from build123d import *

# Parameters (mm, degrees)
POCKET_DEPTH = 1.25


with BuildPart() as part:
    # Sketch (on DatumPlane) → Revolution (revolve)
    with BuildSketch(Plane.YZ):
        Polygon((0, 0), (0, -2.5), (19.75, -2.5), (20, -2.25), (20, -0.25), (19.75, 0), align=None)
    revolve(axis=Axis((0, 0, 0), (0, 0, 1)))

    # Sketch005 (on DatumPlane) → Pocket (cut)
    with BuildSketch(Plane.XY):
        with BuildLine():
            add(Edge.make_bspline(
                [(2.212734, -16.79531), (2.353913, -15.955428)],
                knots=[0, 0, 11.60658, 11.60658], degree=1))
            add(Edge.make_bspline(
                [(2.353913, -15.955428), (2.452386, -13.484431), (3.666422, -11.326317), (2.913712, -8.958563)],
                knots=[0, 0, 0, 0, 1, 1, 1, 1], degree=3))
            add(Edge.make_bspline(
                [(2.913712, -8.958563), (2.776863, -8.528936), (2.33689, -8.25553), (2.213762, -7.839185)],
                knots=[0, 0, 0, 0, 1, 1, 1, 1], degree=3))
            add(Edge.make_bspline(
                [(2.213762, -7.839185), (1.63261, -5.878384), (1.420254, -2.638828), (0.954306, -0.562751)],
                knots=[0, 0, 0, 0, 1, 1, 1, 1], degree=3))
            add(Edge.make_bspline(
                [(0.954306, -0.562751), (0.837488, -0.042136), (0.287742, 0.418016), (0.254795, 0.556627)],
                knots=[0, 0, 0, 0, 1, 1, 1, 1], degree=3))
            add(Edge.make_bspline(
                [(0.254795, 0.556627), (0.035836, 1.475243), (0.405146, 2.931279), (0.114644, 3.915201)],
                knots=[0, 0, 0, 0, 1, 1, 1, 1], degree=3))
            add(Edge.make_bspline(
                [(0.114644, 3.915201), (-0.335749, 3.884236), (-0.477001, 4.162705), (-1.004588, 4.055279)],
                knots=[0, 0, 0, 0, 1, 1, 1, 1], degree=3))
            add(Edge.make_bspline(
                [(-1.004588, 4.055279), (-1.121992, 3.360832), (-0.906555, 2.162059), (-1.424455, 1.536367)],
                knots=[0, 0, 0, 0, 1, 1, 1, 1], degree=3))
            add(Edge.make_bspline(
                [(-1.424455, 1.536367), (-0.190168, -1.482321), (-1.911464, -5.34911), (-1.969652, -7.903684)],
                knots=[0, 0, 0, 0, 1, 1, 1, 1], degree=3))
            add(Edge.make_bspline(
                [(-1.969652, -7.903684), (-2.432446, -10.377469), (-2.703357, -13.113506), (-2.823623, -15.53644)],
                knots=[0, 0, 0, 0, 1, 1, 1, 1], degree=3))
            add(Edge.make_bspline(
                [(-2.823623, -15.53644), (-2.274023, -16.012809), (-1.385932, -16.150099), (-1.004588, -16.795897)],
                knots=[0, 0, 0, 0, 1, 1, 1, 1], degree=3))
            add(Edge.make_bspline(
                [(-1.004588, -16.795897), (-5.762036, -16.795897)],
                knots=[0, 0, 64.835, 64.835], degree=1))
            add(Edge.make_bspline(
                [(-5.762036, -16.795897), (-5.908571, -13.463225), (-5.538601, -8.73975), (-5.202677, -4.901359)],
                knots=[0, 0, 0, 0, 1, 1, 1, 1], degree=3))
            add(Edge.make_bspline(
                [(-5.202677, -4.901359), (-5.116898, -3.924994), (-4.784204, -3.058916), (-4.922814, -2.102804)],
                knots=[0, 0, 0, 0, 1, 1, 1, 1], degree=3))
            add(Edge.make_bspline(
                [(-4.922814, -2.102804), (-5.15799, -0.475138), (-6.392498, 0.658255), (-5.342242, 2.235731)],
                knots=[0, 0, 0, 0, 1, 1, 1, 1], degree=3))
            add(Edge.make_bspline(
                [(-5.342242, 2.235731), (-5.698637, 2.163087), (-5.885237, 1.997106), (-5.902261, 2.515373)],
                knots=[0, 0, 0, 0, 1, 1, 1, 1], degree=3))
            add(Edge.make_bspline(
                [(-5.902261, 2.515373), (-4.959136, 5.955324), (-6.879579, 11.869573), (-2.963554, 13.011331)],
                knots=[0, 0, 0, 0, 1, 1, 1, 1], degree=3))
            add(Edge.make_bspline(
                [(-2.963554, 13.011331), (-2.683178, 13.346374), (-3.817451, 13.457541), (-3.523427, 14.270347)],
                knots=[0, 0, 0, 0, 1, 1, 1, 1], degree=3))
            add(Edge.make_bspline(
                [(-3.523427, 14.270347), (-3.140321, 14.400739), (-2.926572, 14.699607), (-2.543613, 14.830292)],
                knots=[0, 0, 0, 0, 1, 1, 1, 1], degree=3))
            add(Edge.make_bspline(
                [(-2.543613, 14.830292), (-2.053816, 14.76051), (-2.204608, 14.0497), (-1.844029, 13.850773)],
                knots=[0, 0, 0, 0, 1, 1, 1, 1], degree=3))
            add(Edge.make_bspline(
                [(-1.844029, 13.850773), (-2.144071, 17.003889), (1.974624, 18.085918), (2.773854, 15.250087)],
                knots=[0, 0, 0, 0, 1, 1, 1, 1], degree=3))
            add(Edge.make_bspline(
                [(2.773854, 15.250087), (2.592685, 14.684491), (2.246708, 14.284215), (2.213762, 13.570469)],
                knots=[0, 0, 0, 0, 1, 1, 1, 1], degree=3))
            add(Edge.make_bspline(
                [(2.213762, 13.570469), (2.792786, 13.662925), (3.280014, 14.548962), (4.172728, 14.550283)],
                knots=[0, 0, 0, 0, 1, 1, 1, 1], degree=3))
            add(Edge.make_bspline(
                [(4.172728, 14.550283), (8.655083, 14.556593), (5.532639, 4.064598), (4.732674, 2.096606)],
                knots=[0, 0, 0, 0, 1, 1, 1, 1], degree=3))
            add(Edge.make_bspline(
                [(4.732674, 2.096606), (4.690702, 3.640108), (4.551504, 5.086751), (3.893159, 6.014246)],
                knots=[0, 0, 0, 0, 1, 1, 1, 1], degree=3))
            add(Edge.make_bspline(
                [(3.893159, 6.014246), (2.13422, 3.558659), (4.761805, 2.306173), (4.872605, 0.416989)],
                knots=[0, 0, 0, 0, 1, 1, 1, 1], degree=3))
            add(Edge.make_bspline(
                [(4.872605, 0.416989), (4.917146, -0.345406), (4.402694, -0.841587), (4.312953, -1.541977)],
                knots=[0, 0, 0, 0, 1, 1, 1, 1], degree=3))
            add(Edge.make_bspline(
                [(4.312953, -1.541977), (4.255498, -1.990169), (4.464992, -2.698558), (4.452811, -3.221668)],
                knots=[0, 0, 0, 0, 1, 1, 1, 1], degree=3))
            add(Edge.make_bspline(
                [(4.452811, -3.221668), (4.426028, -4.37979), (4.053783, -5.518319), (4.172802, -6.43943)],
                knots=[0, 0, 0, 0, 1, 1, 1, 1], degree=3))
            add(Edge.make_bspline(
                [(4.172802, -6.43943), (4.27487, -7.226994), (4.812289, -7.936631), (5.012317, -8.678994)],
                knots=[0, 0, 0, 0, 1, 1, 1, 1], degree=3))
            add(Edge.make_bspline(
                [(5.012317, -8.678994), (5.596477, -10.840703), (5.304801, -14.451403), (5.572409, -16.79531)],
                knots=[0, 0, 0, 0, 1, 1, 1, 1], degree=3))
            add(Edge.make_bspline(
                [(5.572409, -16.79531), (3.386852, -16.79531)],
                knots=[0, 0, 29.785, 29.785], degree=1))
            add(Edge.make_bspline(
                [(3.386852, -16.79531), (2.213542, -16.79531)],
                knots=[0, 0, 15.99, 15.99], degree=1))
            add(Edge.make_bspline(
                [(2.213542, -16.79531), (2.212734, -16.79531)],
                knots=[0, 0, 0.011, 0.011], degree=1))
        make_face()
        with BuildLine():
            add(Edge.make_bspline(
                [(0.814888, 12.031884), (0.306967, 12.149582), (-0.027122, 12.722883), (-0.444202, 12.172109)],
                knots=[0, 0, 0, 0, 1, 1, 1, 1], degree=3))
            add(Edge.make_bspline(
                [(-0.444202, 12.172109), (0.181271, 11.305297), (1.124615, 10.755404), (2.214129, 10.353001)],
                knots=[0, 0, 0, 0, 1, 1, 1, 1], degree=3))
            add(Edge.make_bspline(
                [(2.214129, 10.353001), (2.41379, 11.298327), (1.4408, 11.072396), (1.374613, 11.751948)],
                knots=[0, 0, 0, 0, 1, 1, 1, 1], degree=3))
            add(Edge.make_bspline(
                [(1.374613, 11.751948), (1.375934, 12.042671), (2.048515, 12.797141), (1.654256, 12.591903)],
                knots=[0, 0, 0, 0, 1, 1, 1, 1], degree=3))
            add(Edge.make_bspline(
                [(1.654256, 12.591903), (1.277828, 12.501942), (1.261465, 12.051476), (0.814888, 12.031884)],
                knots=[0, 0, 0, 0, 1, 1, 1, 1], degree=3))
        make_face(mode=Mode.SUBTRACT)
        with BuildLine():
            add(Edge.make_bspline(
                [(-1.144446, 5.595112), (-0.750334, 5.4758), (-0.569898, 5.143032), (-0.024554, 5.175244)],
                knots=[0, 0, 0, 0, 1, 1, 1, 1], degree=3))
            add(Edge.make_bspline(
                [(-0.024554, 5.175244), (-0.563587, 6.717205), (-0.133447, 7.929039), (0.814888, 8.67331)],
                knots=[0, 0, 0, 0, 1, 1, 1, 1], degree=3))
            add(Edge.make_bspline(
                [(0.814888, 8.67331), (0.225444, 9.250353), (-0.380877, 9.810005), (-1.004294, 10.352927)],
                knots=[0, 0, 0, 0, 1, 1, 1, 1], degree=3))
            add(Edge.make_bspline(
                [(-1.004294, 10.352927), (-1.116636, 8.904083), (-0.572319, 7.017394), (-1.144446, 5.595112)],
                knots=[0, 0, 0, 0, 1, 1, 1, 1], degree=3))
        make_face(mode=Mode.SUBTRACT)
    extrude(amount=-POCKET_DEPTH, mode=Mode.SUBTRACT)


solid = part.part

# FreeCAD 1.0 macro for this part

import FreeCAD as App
import Part
import Sketcher

V = App.Vector
Q = App.Units.Quantity


def add_polygon(sketch, points):
    """Adds a closed chain of lines whose ends are joined by coincident constraints."""
    first, n = sketch.GeometryCount, len(points)
    for a, b in zip(points, points[1:] + points[:1]):
        sketch.addGeometry(Part.LineSegment(App.Vector(*a, 0), App.Vector(*b, 0)), False)
    for i in range(n):
        sketch.addConstraint(Sketcher.Constraint("Coincident", first + i, 2, first + (i + 1) % n, 1))

doc = App.newDocument("Part")
body = doc.addObject("PartDesign::Body", "Body")

sketch1 = body.newObject("Sketcher::SketchObject", "Sketch")
sketch1.AttachmentSupport = (doc.getObject("YZ_Plane"), [""])
sketch1.MapMode = "FlatFace"
add_polygon(sketch1, [(0, 0), (0, -2.5), (19.75, -2.5), (20, -2.25), (20, -0.25), (19.75, 0)])
sketch1.addConstraint([
    Sketcher.Constraint("Vertical", 0),
    Sketcher.Constraint("Horizontal", 1),
    Sketcher.Constraint("Vertical", 3),
    Sketcher.Constraint("Horizontal", 5),
    Sketcher.Constraint("Coincident", 5, 2, -1, 1),
    Sketcher.Constraint("Perpendicular", 2, 4),
    Sketcher.Constraint("Vertical", 1, 2, 4, 2),
    Sketcher.Constraint("Equal", 2, 4),
    Sketcher.Constraint("DistanceY", 3, 1, 3, 2, Q("2 mm")),
    Sketcher.Constraint("DistanceY", 0, 2, 0, 1, Q("2.5 mm")),
    Sketcher.Constraint("DistanceX", -1, 1, 2, 2, Q("20 mm")),
])
revolution = body.newObject("PartDesign::Revolution", "Revolution")
revolution.Profile = sketch1
revolution.ReferenceAxis = (sketch1, ["V_Axis"])
revolution.Angle = 360

sketch2 = body.newObject("Sketcher::SketchObject", "Sketch001")
sketch2.AttachmentSupport = (doc.getObject("XY_Plane"), [""])
sketch2.MapMode = "FlatFace"
sketch2.addGeometry([
    Part.BSplineCurve([V(2.212734, -16.79531, 0), V(2.353913, -15.955428, 0)], [2, 2], [0, 11.60658], False, 1, [1, 1], False),
    Part.LineSegment(V(2.212734, -16.79531, 0), V(5.572409, -16.79531, 0)),
    Part.BSplineCurve([V(5.012317, -8.678994, 0), V(5.596477, -10.840703, 0), V(5.304801, -14.451403, 0), V(5.572409, -16.79531, 0)], [4, 4], [0, 1], False, 3, [1, 1, 1, 1], False),
    Part.BSplineCurve([V(4.172802, -6.43943, 0), V(4.27487, -7.226994, 0), V(4.812289, -7.936631, 0), V(5.012317, -8.678994, 0)], [4, 4], [0, 1], False, 3, [1, 1, 1, 1], False),
    Part.BSplineCurve([V(4.452811, -3.221668, 0), V(4.426028, -4.37979, 0), V(4.053783, -5.518319, 0), V(4.172802, -6.43943, 0)], [4, 4], [0, 1], False, 3, [1, 1, 1, 1], False),
    Part.BSplineCurve([V(4.312953, -1.541977, 0), V(4.255498, -1.990169, 0), V(4.464992, -2.698558, 0), V(4.452811, -3.221668, 0)], [4, 4], [0, 1], False, 3, [1, 1, 1, 1], False),
    Part.BSplineCurve([V(4.872605, 0.416989, 0), V(4.917146, -0.345406, 0), V(4.402694, -0.841587, 0), V(4.312953, -1.541977, 0)], [4, 4], [0, 1], False, 3, [1, 1, 1, 1], False),
    Part.BSplineCurve([V(3.893159, 6.014246, 0), V(2.13422, 3.558659, 0), V(4.761805, 2.306173, 0), V(4.872605, 0.416989, 0)], [4, 4], [0, 1], False, 3, [1, 1, 1, 1], False),
    Part.BSplineCurve([V(4.732674, 2.096606, 0), V(4.690702, 3.640108, 0), V(4.551504, 5.086751, 0), V(3.893159, 6.014246, 0)], [4, 4], [0, 1], False, 3, [1, 1, 1, 1], False),
    Part.BSplineCurve([V(4.172728, 14.550283, 0), V(8.655083, 14.556593, 0), V(5.532639, 4.064598, 0), V(4.732674, 2.096606, 0)], [4, 4], [0, 1], False, 3, [1, 1, 1, 1], False),
    Part.BSplineCurve([V(2.213762, 13.570469, 0), V(2.792786, 13.662925, 0), V(3.280014, 14.548962, 0), V(4.172728, 14.550283, 0)], [4, 4], [0, 1], False, 3, [1, 1, 1, 1], False),
    Part.BSplineCurve([V(2.773854, 15.250087, 0), V(2.592685, 14.684491, 0), V(2.246708, 14.284215, 0), V(2.213762, 13.570469, 0)], [4, 4], [0, 1], False, 3, [1, 1, 1, 1], False),
    Part.BSplineCurve([V(-1.844029, 13.850773, 0), V(-2.144071, 17.003889, 0), V(1.974624, 18.085918, 0), V(2.773854, 15.250087, 0)], [4, 4], [0, 1], False, 3, [1, 1, 1, 1], False),
    Part.BSplineCurve([V(-2.543613, 14.830292, 0), V(-2.053816, 14.76051, 0), V(-2.204608, 14.0497, 0), V(-1.844029, 13.850773, 0)], [4, 4], [0, 1], False, 3, [1, 1, 1, 1], False),
    Part.BSplineCurve([V(-3.523427, 14.270347, 0), V(-3.140321, 14.400739, 0), V(-2.926572, 14.699607, 0), V(-2.543613, 14.830292, 0)], [4, 4], [0, 1], False, 3, [1, 1, 1, 1], False),
    Part.BSplineCurve([V(-2.963554, 13.011331, 0), V(-2.683178, 13.346374, 0), V(-3.817451, 13.457541, 0), V(-3.523427, 14.270347, 0)], [4, 4], [0, 1], False, 3, [1, 1, 1, 1], False),
    Part.BSplineCurve([V(-5.902261, 2.515373, 0), V(-4.959136, 5.955324, 0), V(-6.879579, 11.869573, 0), V(-2.963554, 13.011331, 0)], [4, 4], [0, 1], False, 3, [1, 1, 1, 1], False),
    Part.BSplineCurve([V(-5.342242, 2.235731, 0), V(-5.698637, 2.163087, 0), V(-5.885237, 1.997106, 0), V(-5.902261, 2.515373, 0)], [4, 4], [0, 1], False, 3, [1, 1, 1, 1], False),
    Part.BSplineCurve([V(-4.922814, -2.102804, 0), V(-5.15799, -0.475138, 0), V(-6.392498, 0.658255, 0), V(-5.342242, 2.235731, 0)], [4, 4], [0, 1], False, 3, [1, 1, 1, 1], False),
    Part.BSplineCurve([V(-5.202677, -4.901359, 0), V(-5.116898, -3.924994, 0), V(-4.784204, -3.058916, 0), V(-4.922814, -2.102804, 0)], [4, 4], [0, 1], False, 3, [1, 1, 1, 1], False),
    Part.BSplineCurve([V(-5.762036, -16.795897, 0), V(-5.908571, -13.463225, 0), V(-5.538601, -8.73975, 0), V(-5.202677, -4.901359, 0)], [4, 4], [0, 1], False, 3, [1, 1, 1, 1], False),
    Part.BSplineCurve([V(-1.004588, -16.795897, 0), V(-5.762036, -16.795897, 0)], [2, 2], [0, 64.835], False, 1, [1, 1], False),
    Part.BSplineCurve([V(-2.823623, -15.53644, 0), V(-2.274023, -16.012809, 0), V(-1.385932, -16.150099, 0), V(-1.004588, -16.795897, 0)], [4, 4], [0, 1], False, 3, [1, 1, 1, 1], False),
    Part.BSplineCurve([V(-1.969652, -7.903684, 0), V(-2.432446, -10.377469, 0), V(-2.703357, -13.113506, 0), V(-2.823623, -15.53644, 0)], [4, 4], [0, 1], False, 3, [1, 1, 1, 1], False),
    Part.BSplineCurve([V(-1.424455, 1.536367, 0), V(-0.190168, -1.482321, 0), V(-1.911464, -5.34911, 0), V(-1.969652, -7.903684, 0)], [4, 4], [0, 1], False, 3, [1, 1, 1, 1], False),
    Part.BSplineCurve([V(-1.004588, 4.055279, 0), V(-1.121992, 3.360832, 0), V(-0.906555, 2.162059, 0), V(-1.424455, 1.536367, 0)], [4, 4], [0, 1], False, 3, [1, 1, 1, 1], False),
    Part.BSplineCurve([V(0.114644, 3.915201, 0), V(-0.335749, 3.884236, 0), V(-0.477001, 4.162705, 0), V(-1.004588, 4.055279, 0)], [4, 4], [0, 1], False, 3, [1, 1, 1, 1], False),
    Part.BSplineCurve([V(0.254795, 0.556627, 0), V(0.035836, 1.475243, 0), V(0.405146, 2.931279, 0), V(0.114644, 3.915201, 0)], [4, 4], [0, 1], False, 3, [1, 1, 1, 1], False),
    Part.BSplineCurve([V(0.954306, -0.562751, 0), V(0.837488, -0.042136, 0), V(0.287742, 0.418016, 0), V(0.254795, 0.556627, 0)], [4, 4], [0, 1], False, 3, [1, 1, 1, 1], False),
    Part.BSplineCurve([V(2.213762, -7.839185, 0), V(1.63261, -5.878384, 0), V(1.420254, -2.638828, 0), V(0.954306, -0.562751, 0)], [4, 4], [0, 1], False, 3, [1, 1, 1, 1], False),
    Part.BSplineCurve([V(2.913712, -8.958563, 0), V(2.776863, -8.528936, 0), V(2.33689, -8.25553, 0), V(2.213762, -7.839185, 0)], [4, 4], [0, 1], False, 3, [1, 1, 1, 1], False),
    Part.BSplineCurve([V(2.353913, -15.955428, 0), V(2.452386, -13.484431, 0), V(3.666422, -11.326317, 0), V(2.913712, -8.958563, 0)], [4, 4], [0, 1], False, 3, [1, 1, 1, 1], False),
    Part.BSplineCurve([V(-1.004294, 10.352927, 0), V(-1.116636, 8.904083, 0), V(-0.572319, 7.017394, 0), V(-1.144446, 5.595112, 0)], [4, 4], [0, 1], False, 3, [1, 1, 1, 1], False),
    Part.BSplineCurve([V(0.814888, 8.67331, 0), V(0.225444, 9.250353, 0), V(-0.380877, 9.810005, 0), V(-1.004294, 10.352927, 0)], [4, 4], [0, 1], False, 3, [1, 1, 1, 1], False),
    Part.BSplineCurve([V(-0.024554, 5.175244, 0), V(-0.563587, 6.717205, 0), V(-0.133447, 7.929039, 0), V(0.814888, 8.67331, 0)], [4, 4], [0, 1], False, 3, [1, 1, 1, 1], False),
    Part.BSplineCurve([V(-1.144446, 5.595112, 0), V(-0.750334, 5.4758, 0), V(-0.569898, 5.143032, 0), V(-0.024554, 5.175244, 0)], [4, 4], [0, 1], False, 3, [1, 1, 1, 1], False),
    Part.BSplineCurve([V(1.654256, 12.591903, 0), V(1.277828, 12.501942, 0), V(1.261465, 12.051476, 0), V(0.814888, 12.031884, 0)], [4, 4], [0, 1], False, 3, [1, 1, 1, 1], False),
    Part.BSplineCurve([V(1.374613, 11.751948, 0), V(1.375934, 12.042671, 0), V(2.048515, 12.797141, 0), V(1.654256, 12.591903, 0)], [4, 4], [0, 1], False, 3, [1, 1, 1, 1], False),
    Part.BSplineCurve([V(2.214129, 10.353001, 0), V(2.41379, 11.298327, 0), V(1.4408, 11.072396, 0), V(1.374613, 11.751948, 0)], [4, 4], [0, 1], False, 3, [1, 1, 1, 1], False),
    Part.BSplineCurve([V(-0.444202, 12.172109, 0), V(0.181271, 11.305297, 0), V(1.124615, 10.755404, 0), V(2.214129, 10.353001, 0)], [4, 4], [0, 1], False, 3, [1, 1, 1, 1], False),
    Part.BSplineCurve([V(0.814888, 12.031884, 0), V(0.306967, 12.149582, 0), V(-0.027122, 12.722883, 0), V(-0.444202, 12.172109, 0)], [4, 4], [0, 1], False, 3, [1, 1, 1, 1], False),
], False)
sketch2.addConstraint([
    Sketcher.Constraint("Block", 0),
    Sketcher.Constraint("Block", 2),
    Sketcher.Constraint("Block", 3),
    Sketcher.Constraint("Block", 4),
    Sketcher.Constraint("Block", 5),
    Sketcher.Constraint("Block", 6),
    Sketcher.Constraint("Block", 7),
    Sketcher.Constraint("Block", 8),
    Sketcher.Constraint("Block", 9),
    Sketcher.Constraint("Block", 10),
    Sketcher.Constraint("Block", 11),
    Sketcher.Constraint("Block", 12),
    Sketcher.Constraint("Block", 13),
    Sketcher.Constraint("Block", 14),
    Sketcher.Constraint("Block", 15),
    Sketcher.Constraint("Block", 16),
    Sketcher.Constraint("Block", 17),
    Sketcher.Constraint("Block", 18),
    Sketcher.Constraint("Block", 19),
    Sketcher.Constraint("Block", 20),
    Sketcher.Constraint("Block", 21),
    Sketcher.Constraint("Block", 22),
    Sketcher.Constraint("Block", 23),
    Sketcher.Constraint("Block", 24),
    Sketcher.Constraint("Block", 25),
    Sketcher.Constraint("Block", 26),
    Sketcher.Constraint("Block", 27),
    Sketcher.Constraint("Block", 28),
    Sketcher.Constraint("Block", 29),
    Sketcher.Constraint("Block", 30),
    Sketcher.Constraint("Block", 31),
    Sketcher.Constraint("Block", 32),
    Sketcher.Constraint("Block", 33),
    Sketcher.Constraint("Block", 34),
    Sketcher.Constraint("Block", 35),
    Sketcher.Constraint("Block", 36),
    Sketcher.Constraint("Block", 37),
    Sketcher.Constraint("Block", 38),
    Sketcher.Constraint("Block", 39),
    Sketcher.Constraint("Block", 40),
    Sketcher.Constraint("Coincident", 0, 1, 1, 1),
    Sketcher.Constraint("Coincident", 1, 2, 2, 2),
])
pocket1 = body.newObject("PartDesign::Pocket", "Pocket")
pocket1.Profile = sketch2
pocket1.Length = 1.25

doc.recompute()
